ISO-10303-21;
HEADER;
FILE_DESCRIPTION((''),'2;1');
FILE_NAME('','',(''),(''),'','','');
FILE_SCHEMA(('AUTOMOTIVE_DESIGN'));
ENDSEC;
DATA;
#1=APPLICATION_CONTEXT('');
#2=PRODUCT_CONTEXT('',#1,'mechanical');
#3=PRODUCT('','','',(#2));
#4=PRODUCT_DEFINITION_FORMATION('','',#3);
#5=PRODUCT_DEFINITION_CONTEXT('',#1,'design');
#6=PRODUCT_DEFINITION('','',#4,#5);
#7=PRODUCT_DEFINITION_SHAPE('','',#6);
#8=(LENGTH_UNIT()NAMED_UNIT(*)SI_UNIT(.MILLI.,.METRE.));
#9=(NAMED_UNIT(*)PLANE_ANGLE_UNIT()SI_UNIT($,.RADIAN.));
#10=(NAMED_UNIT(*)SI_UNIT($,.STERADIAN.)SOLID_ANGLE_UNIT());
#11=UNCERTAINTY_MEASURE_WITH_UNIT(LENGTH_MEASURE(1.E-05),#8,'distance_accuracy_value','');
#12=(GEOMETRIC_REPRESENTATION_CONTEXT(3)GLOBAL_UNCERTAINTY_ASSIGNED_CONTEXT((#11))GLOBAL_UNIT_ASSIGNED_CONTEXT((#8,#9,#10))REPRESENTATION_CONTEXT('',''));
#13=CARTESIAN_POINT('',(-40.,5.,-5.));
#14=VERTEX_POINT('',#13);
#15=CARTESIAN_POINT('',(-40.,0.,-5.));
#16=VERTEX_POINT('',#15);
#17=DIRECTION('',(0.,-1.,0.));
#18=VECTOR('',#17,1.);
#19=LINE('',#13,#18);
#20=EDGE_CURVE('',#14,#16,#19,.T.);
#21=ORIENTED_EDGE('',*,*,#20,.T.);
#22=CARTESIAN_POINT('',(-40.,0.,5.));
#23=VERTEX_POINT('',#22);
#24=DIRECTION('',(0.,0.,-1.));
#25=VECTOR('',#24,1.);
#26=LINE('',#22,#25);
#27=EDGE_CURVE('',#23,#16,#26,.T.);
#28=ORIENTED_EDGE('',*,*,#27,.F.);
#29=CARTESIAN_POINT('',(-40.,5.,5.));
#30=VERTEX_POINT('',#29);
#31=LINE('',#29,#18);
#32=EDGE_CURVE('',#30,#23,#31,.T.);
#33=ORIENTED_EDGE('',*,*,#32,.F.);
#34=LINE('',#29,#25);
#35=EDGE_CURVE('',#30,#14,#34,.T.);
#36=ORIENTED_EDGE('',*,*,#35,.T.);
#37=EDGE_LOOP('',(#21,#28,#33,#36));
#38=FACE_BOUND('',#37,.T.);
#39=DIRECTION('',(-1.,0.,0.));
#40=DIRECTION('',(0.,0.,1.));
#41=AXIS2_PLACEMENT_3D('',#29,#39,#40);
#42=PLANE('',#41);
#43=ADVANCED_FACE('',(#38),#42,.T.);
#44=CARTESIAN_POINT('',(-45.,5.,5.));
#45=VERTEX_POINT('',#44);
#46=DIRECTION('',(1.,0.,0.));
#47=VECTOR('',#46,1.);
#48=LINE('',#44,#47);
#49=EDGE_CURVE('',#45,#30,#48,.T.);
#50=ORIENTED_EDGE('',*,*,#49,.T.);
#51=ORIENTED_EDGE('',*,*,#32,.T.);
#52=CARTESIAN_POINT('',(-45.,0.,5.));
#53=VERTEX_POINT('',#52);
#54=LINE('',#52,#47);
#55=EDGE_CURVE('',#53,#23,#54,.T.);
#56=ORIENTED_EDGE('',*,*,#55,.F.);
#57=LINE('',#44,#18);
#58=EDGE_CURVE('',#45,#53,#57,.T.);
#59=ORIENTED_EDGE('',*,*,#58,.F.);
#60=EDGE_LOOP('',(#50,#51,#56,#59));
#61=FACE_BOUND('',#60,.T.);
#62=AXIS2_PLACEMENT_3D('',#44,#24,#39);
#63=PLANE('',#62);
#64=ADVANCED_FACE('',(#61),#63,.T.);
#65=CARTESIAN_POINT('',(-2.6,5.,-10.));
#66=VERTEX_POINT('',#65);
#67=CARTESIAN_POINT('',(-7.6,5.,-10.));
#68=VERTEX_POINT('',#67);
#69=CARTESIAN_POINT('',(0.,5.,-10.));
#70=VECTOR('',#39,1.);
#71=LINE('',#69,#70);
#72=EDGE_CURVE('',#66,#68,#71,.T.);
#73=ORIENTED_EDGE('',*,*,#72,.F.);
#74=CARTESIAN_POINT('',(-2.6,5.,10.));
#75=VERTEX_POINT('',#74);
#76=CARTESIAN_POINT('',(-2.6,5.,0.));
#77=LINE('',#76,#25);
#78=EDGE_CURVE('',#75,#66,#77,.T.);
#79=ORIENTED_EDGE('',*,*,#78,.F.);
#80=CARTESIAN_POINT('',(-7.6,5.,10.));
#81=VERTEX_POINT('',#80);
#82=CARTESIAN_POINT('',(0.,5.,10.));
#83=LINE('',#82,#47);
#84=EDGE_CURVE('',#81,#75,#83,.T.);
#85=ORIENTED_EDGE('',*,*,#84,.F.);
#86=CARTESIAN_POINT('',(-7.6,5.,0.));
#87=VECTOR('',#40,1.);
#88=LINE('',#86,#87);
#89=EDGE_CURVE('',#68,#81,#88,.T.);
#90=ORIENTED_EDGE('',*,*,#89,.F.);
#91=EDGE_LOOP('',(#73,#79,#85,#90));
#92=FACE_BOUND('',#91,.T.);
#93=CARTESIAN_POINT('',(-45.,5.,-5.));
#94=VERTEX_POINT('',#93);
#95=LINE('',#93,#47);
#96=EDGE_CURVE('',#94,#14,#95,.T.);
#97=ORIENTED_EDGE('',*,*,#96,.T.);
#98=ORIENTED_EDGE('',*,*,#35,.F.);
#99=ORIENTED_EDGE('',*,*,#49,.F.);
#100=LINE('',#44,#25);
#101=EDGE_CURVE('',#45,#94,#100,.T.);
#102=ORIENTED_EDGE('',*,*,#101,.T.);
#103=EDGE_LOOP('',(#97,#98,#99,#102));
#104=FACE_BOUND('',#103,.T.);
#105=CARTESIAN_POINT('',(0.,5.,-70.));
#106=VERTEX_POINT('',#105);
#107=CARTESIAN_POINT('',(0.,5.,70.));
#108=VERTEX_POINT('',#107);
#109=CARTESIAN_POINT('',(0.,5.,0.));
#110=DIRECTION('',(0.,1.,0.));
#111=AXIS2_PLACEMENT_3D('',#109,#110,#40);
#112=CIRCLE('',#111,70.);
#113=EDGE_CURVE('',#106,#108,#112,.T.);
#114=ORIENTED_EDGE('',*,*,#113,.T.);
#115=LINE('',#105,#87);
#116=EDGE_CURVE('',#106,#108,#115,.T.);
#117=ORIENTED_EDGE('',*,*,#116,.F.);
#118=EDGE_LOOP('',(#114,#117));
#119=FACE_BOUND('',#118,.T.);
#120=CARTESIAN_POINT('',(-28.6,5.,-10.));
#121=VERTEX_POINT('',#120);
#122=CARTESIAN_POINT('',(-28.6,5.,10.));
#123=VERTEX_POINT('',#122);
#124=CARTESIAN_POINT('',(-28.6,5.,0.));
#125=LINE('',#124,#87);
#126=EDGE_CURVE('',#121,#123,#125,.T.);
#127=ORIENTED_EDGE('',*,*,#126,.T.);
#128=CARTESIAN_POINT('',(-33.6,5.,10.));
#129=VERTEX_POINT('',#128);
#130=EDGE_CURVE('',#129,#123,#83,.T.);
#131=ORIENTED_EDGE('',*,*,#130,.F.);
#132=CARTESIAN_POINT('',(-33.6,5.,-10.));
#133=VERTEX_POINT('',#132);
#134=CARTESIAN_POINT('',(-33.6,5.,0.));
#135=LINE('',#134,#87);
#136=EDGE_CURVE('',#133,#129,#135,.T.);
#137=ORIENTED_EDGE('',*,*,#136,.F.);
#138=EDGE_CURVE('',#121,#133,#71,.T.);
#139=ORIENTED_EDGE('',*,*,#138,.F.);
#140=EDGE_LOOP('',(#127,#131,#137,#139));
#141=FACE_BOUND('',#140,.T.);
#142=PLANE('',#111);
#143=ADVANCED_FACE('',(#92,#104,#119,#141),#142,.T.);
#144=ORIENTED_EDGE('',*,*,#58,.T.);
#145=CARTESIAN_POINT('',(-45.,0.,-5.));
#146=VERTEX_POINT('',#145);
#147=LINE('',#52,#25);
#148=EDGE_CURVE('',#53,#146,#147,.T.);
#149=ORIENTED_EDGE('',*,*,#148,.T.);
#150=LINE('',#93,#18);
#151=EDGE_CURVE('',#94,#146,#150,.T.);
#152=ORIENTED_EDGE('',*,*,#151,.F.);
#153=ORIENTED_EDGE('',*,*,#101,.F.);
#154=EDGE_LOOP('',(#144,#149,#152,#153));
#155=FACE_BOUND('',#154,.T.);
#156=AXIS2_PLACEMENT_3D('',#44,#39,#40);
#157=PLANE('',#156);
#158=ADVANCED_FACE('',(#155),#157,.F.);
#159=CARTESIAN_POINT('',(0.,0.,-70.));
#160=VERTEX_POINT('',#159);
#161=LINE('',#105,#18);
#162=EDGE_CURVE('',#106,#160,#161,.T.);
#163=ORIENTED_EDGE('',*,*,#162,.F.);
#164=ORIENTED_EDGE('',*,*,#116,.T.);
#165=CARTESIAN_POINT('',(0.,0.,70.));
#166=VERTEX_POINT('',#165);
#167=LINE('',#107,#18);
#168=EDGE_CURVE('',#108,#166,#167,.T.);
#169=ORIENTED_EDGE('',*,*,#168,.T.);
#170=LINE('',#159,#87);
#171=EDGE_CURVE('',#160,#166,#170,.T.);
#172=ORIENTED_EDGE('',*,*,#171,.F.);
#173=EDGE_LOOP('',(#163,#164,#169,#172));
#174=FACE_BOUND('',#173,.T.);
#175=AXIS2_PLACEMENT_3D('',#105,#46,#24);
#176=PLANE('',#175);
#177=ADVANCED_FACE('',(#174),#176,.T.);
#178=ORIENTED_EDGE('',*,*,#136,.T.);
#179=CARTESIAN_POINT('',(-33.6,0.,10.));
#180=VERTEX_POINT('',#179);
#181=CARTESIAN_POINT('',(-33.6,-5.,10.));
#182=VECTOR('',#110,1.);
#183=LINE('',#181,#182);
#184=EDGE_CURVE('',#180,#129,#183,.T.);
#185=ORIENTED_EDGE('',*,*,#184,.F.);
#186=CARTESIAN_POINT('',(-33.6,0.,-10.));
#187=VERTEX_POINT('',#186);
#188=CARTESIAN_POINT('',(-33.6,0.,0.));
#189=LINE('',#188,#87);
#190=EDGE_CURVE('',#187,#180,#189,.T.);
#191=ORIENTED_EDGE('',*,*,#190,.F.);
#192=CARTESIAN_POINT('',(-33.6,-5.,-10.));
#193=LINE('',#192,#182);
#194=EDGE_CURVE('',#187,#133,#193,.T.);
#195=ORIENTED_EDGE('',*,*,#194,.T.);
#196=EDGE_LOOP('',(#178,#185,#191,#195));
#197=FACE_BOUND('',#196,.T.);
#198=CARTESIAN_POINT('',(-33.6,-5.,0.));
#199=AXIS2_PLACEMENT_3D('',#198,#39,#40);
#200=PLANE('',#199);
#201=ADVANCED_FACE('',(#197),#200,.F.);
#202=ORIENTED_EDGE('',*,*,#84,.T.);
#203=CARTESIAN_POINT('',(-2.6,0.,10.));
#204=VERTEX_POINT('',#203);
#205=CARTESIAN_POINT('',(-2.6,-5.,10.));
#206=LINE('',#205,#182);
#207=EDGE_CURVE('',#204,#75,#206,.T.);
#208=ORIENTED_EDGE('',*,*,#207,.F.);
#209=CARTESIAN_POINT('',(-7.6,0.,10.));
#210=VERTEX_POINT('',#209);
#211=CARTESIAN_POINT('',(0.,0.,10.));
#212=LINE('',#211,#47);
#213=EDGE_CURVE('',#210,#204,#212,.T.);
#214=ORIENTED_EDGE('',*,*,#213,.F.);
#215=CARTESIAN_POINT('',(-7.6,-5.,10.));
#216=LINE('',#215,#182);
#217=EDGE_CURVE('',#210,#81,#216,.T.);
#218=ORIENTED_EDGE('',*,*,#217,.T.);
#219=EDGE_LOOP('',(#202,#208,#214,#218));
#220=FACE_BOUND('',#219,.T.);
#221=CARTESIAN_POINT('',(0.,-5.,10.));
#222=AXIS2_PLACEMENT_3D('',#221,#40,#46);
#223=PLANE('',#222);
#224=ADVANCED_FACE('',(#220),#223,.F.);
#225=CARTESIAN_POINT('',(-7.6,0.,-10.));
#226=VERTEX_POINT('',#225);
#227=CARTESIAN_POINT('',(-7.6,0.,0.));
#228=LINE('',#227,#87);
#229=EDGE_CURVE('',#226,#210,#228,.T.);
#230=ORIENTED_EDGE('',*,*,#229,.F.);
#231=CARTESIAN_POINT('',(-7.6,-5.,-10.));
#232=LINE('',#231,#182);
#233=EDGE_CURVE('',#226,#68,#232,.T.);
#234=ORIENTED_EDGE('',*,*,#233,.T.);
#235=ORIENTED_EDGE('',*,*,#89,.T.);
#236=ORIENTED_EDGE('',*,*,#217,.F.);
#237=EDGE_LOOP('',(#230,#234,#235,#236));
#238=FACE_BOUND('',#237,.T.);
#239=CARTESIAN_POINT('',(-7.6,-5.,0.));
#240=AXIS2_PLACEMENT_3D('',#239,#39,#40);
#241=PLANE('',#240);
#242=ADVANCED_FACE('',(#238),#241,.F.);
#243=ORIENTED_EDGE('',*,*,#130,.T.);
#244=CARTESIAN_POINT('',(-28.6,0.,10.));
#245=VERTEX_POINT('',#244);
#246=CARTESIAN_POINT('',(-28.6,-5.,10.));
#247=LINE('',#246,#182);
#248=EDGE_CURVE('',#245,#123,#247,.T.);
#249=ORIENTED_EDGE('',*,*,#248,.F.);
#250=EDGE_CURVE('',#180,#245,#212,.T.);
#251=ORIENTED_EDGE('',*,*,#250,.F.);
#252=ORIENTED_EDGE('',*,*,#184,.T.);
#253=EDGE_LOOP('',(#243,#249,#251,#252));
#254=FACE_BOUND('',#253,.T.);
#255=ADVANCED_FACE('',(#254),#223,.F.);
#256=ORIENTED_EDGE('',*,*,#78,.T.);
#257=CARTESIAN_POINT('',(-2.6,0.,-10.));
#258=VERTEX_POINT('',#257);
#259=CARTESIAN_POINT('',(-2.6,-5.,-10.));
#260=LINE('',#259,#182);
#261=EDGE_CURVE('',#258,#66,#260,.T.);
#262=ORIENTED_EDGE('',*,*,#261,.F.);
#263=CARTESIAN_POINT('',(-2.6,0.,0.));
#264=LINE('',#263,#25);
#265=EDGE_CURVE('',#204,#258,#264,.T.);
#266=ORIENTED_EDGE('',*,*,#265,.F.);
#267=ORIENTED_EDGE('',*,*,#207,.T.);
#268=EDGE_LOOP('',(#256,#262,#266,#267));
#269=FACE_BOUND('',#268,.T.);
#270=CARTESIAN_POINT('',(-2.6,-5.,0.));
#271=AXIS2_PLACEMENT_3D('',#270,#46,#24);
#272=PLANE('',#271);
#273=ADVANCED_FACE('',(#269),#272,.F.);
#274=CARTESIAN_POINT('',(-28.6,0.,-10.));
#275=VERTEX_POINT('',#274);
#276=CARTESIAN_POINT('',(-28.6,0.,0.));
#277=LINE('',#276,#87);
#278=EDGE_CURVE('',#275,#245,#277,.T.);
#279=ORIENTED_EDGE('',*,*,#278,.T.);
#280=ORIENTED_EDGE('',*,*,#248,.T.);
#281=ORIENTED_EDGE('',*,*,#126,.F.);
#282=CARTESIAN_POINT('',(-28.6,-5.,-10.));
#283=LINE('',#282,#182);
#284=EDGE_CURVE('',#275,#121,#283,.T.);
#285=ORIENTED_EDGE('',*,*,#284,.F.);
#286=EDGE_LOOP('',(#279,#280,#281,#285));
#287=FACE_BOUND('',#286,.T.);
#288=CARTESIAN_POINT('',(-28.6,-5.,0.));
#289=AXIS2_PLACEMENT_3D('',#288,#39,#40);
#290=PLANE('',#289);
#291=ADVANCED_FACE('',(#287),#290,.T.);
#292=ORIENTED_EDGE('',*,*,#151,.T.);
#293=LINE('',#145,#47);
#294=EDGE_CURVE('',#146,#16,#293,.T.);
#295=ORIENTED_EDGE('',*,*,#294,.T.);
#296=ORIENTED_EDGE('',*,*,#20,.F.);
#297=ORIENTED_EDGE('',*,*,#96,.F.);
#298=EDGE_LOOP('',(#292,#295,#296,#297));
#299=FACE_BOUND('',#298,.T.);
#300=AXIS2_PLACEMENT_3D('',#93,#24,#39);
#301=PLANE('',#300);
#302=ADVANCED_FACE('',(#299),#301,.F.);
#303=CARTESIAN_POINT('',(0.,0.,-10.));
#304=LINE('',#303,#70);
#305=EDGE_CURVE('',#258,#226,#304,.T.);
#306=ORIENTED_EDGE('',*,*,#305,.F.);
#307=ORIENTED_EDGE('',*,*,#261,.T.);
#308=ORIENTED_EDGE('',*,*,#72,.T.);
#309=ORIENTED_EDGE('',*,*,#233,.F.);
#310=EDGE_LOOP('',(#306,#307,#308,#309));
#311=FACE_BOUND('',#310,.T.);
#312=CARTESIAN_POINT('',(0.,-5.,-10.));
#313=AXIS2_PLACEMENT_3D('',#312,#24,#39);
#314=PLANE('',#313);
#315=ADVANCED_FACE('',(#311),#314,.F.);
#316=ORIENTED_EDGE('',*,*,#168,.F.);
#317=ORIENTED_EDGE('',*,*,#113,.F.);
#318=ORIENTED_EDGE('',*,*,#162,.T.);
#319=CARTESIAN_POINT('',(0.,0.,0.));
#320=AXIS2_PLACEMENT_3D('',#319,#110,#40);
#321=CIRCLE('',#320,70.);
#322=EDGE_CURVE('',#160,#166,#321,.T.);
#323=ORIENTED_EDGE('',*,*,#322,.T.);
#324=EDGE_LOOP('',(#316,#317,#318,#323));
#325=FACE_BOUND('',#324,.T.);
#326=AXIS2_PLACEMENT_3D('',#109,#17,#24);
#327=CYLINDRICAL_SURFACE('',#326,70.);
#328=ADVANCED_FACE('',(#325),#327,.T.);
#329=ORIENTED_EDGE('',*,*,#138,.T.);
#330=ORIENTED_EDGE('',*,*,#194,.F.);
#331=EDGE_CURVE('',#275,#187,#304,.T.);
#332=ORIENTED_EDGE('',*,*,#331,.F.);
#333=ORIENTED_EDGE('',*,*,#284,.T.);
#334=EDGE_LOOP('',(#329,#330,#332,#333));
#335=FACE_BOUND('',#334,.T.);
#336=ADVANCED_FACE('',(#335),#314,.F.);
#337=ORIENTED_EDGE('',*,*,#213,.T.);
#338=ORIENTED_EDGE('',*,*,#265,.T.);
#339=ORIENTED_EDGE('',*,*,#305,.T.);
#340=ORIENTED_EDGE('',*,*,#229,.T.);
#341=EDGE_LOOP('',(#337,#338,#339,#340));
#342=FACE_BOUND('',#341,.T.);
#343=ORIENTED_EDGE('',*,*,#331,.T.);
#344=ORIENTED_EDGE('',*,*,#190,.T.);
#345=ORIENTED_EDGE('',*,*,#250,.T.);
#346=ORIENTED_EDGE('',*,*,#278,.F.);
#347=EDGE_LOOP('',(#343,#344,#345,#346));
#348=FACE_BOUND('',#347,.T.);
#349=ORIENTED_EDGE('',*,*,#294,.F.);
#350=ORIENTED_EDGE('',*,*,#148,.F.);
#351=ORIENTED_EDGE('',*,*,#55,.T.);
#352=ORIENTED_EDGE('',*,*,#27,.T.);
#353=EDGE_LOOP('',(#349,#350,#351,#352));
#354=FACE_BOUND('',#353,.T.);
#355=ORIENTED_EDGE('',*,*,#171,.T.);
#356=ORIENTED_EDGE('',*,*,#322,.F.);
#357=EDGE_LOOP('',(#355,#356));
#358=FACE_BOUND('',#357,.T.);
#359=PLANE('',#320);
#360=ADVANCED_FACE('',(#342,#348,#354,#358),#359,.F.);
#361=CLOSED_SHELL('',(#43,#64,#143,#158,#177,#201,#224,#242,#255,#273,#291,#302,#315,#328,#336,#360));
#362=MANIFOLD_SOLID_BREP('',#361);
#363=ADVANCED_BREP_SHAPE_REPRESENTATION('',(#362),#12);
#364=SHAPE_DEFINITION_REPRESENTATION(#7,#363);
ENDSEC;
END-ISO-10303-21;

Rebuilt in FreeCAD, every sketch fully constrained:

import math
import FreeCAD as App
import Part
import Sketcher

V = App.Vector


def add_polygon(sketch, points):
    """Adds a closed chain of lines whose ends are joined by coincident constraints."""
    first, n = sketch.GeometryCount, len(points)
    for a, b in zip(points, points[1:] + points[:1]):
        sketch.addGeometry(Part.LineSegment(App.Vector(*a, 0), App.Vector(*b, 0)), False)
    for i in range(n):
        sketch.addConstraint(Sketcher.Constraint("Coincident", first + i, 2, first + (i + 1) % n, 1))

doc = App.newDocument("Part")
body = doc.addObject("PartDesign::Body", "Body")

sketch1 = body.newObject("Sketcher::SketchObject", "Sketch")
sketch1.AttachmentSupport = (doc.getObject("XZ_Plane"), [""])
sketch1.MapMode = "FlatFace"
sketch1.addGeometry(Part.LineSegment(V(0, 70, 0), V(0, -70, 0)), False)
sketch1.addGeometry(Part.ArcOfCircle(Part.Circle(V(0, 0, 0), V(0, 0, 1), 70), math.radians(90), math.radians(270)), False)
add_polygon(sketch1, [(-45, 5), (-45, -5), (-40, -5), (-40, 5)])
sketch1.addConstraint([
    Sketcher.Constraint("Coincident", 0, 1, 1, 1),
    Sketcher.Constraint("Coincident", 1, 2, 0, 2),
    Sketcher.Constraint("Vertical", 0),
    Sketcher.Constraint("Vertical", 2),
    Sketcher.Constraint("Horizontal", 3),
    Sketcher.Constraint("Vertical", 4),
    Sketcher.Constraint("Horizontal", 5),
    Sketcher.Constraint("Coincident", 1, 3, -1, 1),
    Sketcher.Constraint("PointOnObject", 0, 1, -2),
    Sketcher.Constraint("Radius", 1, 70.0),
    Sketcher.Constraint("DistanceX", 3, 1, 3, 2, 5.0),
    Sketcher.Constraint("DistanceY", 2, 2, 2, 1, 10.0),
    Sketcher.Constraint("DistanceX", 2, 2, -1, 1, 45.0),
    Sketcher.Constraint("DistanceY", 2, 2, -1, 1, 5.0),
])
pad1 = body.newObject("PartDesign::Pad", "Pad")
pad1.Profile = sketch1
pad1.Length = 5
pad1.Reversed = True

sketch2 = body.newObject("Sketcher::SketchObject", "Sketch001")
sketch2.AttachmentSupport = (doc.getObject("XZ_Plane"), [""])
sketch2.MapMode = "FlatFace"
sketch2.AttachmentOffset = App.Placement(V(0, 0, -5), App.Rotation())
add_polygon(sketch2, [(-8, 10), (-3, 10), (-3, -10), (-8, -10)])
sketch2.addConstraint([
    Sketcher.Constraint("Horizontal", 0),
    Sketcher.Constraint("Vertical", 1),
    Sketcher.Constraint("Horizontal", 2),
    Sketcher.Constraint("Vertical", 3),
    Sketcher.Constraint("DistanceX", 0, 1, 0, 2, 5.0),
    Sketcher.Constraint("DistanceY", 1, 2, 1, 1, 20.0),
    Sketcher.Constraint("DistanceY", -1, 1, 0, 2, 10.0),
    Sketcher.Constraint("DistanceX", 0, 2, -1, 1, 2.6),
])
pocket1 = body.newObject("PartDesign::Pocket", "Pocket")
pocket1.Profile = sketch2
pocket1.Length = 10
pocket1.Reversed = True

sketch3 = body.newObject("Sketcher::SketchObject", "Sketch002")
sketch3.AttachmentSupport = (doc.getObject("XZ_Plane"), [""])
sketch3.MapMode = "FlatFace"
sketch3.AttachmentOffset = App.Placement(V(0, 0, -5), App.Rotation())
add_polygon(sketch3, [(-29, 10), (-29, -10), (-34, -10), (-34, 10)])
sketch3.addConstraint([
    Sketcher.Constraint("Vertical", 0),
    Sketcher.Constraint("Horizontal", 1),
    Sketcher.Constraint("Vertical", 2),
    Sketcher.Constraint("Horizontal", 3),
    Sketcher.Constraint("DistanceX", 1, 2, 1, 1, 5.0),
    Sketcher.Constraint("DistanceY", 0, 2, 0, 1, 20.0),
    Sketcher.Constraint("DistanceY", 0, 2, -1, 1, 10.0),
    Sketcher.Constraint("DistanceX", 0, 2, -1, 1, 28.6),
])
pocket2 = body.newObject("PartDesign::Pocket", "Pocket001")
pocket2.Profile = sketch3
pocket2.Length = 10
pocket2.Reversed = True

doc.recompute()
